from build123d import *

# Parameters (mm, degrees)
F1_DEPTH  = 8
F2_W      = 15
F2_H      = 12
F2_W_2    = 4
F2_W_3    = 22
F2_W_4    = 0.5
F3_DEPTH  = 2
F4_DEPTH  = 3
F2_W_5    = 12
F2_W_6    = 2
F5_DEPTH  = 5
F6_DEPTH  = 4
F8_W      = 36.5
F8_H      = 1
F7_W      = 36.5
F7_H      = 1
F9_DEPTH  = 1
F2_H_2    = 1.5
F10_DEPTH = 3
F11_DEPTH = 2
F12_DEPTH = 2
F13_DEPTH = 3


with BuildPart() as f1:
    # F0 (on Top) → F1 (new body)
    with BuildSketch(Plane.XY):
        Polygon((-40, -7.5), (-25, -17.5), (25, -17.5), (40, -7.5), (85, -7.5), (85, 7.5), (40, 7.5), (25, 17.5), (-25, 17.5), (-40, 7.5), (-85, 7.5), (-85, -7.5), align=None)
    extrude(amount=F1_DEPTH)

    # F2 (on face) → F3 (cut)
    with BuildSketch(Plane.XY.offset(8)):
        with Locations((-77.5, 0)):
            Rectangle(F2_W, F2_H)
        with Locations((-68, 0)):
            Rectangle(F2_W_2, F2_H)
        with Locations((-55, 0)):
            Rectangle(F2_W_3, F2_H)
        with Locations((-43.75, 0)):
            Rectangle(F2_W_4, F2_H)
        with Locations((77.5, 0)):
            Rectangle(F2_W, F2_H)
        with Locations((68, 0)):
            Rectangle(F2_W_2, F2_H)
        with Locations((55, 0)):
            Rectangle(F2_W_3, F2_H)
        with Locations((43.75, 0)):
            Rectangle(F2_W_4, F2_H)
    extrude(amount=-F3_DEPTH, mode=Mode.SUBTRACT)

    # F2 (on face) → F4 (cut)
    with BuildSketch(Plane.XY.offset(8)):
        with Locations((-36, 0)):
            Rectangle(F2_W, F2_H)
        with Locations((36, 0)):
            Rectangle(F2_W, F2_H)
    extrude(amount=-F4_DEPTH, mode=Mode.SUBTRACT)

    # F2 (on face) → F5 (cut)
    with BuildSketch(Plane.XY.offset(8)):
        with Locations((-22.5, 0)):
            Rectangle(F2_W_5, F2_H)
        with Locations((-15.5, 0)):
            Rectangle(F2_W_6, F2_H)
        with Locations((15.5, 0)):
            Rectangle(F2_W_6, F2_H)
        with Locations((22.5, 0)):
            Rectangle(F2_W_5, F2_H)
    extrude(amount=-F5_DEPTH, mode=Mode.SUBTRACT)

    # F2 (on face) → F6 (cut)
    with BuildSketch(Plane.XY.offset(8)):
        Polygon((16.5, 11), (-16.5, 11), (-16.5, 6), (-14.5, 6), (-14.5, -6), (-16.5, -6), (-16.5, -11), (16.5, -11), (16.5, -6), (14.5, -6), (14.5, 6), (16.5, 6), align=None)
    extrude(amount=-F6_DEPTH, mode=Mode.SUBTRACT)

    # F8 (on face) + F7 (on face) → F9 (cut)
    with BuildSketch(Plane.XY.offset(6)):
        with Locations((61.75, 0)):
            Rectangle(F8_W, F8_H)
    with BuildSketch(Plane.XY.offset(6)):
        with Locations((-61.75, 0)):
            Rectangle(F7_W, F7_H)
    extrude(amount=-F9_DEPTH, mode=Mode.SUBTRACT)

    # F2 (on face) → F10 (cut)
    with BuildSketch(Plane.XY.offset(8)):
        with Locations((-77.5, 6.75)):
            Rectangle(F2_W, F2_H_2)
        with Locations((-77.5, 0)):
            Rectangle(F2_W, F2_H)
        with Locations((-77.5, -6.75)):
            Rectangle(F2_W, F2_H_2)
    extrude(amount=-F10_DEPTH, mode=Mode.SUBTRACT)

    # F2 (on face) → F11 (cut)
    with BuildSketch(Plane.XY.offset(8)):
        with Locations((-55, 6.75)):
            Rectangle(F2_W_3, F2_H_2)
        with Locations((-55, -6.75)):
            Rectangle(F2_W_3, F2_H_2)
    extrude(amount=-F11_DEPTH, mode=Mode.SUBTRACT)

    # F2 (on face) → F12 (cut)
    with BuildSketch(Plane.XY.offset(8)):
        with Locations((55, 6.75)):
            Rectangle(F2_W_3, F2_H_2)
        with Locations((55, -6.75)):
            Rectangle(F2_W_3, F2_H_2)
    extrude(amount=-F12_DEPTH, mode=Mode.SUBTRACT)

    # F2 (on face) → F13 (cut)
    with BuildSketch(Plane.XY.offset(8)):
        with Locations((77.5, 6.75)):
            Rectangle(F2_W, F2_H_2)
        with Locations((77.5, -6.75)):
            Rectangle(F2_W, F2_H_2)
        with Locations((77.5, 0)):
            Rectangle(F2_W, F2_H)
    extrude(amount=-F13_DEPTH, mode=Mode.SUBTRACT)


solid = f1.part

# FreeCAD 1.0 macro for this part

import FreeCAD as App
import Part
import Sketcher


def add_polygon(sketch, points):
    """Adds a closed chain of lines whose ends are joined by coincident constraints."""
    first, n = sketch.GeometryCount, len(points)
    for a, b in zip(points, points[1:] + points[:1]):
        sketch.addGeometry(Part.LineSegment(App.Vector(*a, 0), App.Vector(*b, 0)), False)
    for i in range(n):
        sketch.addConstraint(Sketcher.Constraint("Coincident", first + i, 2, first + (i + 1) % n, 1))

doc = App.newDocument("Part")
body = doc.addObject("PartDesign::Body", "Body")

# Sketch on XY plane
sketch1 = doc.addObject("Sketcher::SketchObject", "Sketch")
body.addObject(sketch1)
sketch1.AttachmentSupport = (doc.XY_Plane, [""])
sketch1.MapMode = "FlatFace"
add_polygon(sketch1, [(-40, -8), (-25, -18), (25, -18), (40, -8), (85, -8), (85, 8), (40, 8), (25, 18), (-25, 18), (-40, 8), (-85, 8), (-85, -8)])  # lines 0-11
sketch1.addConstraint(Sketcher.Constraint("Horizontal", 1))
sketch1.addConstraint(Sketcher.Constraint("Horizontal", 3))
sketch1.addConstraint(Sketcher.Constraint("Vertical", 4))
sketch1.addConstraint(Sketcher.Constraint("Horizontal", 5))
sketch1.addConstraint(Sketcher.Constraint("Horizontal", 7))
sketch1.addConstraint(Sketcher.Constraint("Horizontal", 9))
sketch1.addConstraint(Sketcher.Constraint("Vertical", 10))
sketch1.addConstraint(Sketcher.Constraint("Horizontal", 11))
sketch1.addConstraint(Sketcher.Constraint("Symmetric", 0, 2, 6, 2, -1, 1))
sketch1.addConstraint(Sketcher.Constraint("Symmetric", 2, 2, 8, 2, -1, 1))
sketch1.addConstraint(Sketcher.Constraint("Symmetric", 4, 2, 10, 2, -1, 1))
sketch1.addConstraint(Sketcher.Constraint("Symmetric", 5, 2, 8, 2, -2))
sketch1.addConstraint(Sketcher.Constraint("Parallel", 0, 6))
sketch1.addConstraint(Sketcher.Constraint("Parallel", 2, 8))
sketch1.addConstraint(Sketcher.Constraint("Vertical", 1, 2, 6, 2))
sketch1.addConstraint(Sketcher.Constraint("DistanceX", 1, 1, 1, 2, 50.0))
sketch1.addConstraint(Sketcher.Constraint("DistanceX", 3, 1, 3, 2, 45.0))
sketch1.addConstraint(Sketcher.Constraint("DistanceY", 4, 1, 4, 2, 15.0))
sketch1.addConstraint(Sketcher.Constraint("DistanceX", -1, 1, 2, 2, 40.0))
sketch1.addConstraint(Sketcher.Constraint("DistanceY", 1, 2, 2, 2, 10.0))
pad1 = doc.addObject("PartDesign::Pad", "Pad")
body.addObject(pad1)
pad1.Profile = sketch1
pad1.Length = 8

# Sketch on XY plane
sketch2 = doc.addObject("Sketcher::SketchObject", "Sketch001")
body.addObject(sketch2)
sketch2.AttachmentSupport = (doc.XY_Plane, [""])
sketch2.MapMode = "FlatFace"
sketch2.AttachmentOffset = App.Placement(App.Vector(0, 0, 8), App.Rotation())
add_polygon(sketch2, [(-85, 6), (-85, -6), (-44, -6), (-44, 6)])  # lines 0-3
add_polygon(sketch2, [(85, -6), (85, 6), (44, 6), (44, -6)])  # lines 4-7
sketch2.addConstraint(Sketcher.Constraint("Vertical", 0))
sketch2.addConstraint(Sketcher.Constraint("Horizontal", 1))
sketch2.addConstraint(Sketcher.Constraint("Vertical", 2))
sketch2.addConstraint(Sketcher.Constraint("Horizontal", 3))
sketch2.addConstraint(Sketcher.Constraint("Vertical", 4))
sketch2.addConstraint(Sketcher.Constraint("Horizontal", 5))
sketch2.addConstraint(Sketcher.Constraint("Vertical", 6))
sketch2.addConstraint(Sketcher.Constraint("Horizontal", 7))
sketch2.addConstraint(Sketcher.Constraint("Symmetric", 0, 2, 4, 2, -1, 1))
sketch2.addConstraint(Sketcher.Constraint("Symmetric", 2, 2, 6, 2, -1, 1))
sketch2.addConstraint(Sketcher.Constraint("Horizontal", 3, 2, 4, 2))
sketch2.addConstraint(Sketcher.Constraint("DistanceY", 0, 2, 0, 1, 12.0))
sketch2.addConstraint(Sketcher.Constraint("DistanceX", 1, 1, 1, 2, 41.5))
sketch2.addConstraint(Sketcher.Constraint("DistanceX", 0, 2, -1, 1, 85.0))
pocket1 = doc.addObject("PartDesign::Pocket", "Pocket")
body.addObject(pocket1)
pocket1.Profile = sketch2
pocket1.Length = 2

# Sketch on XY plane
sketch3 = doc.addObject("Sketcher::SketchObject", "Sketch002")
body.addObject(sketch3)
sketch3.AttachmentSupport = (doc.XY_Plane, [""])
sketch3.MapMode = "FlatFace"
sketch3.AttachmentOffset = App.Placement(App.Vector(0, 0, 8), App.Rotation())
add_polygon(sketch3, [(-44, 6), (-44, -6), (-28, -6), (-28, 6)])  # lines 0-3
add_polygon(sketch3, [(28, 6), (28, -6), (44, -6), (44, 6)])  # lines 4-7
sketch3.addConstraint(Sketcher.Constraint("Vertical", 0))
sketch3.addConstraint(Sketcher.Constraint("Horizontal", 1))
sketch3.addConstraint(Sketcher.Constraint("Vertical", 2))
sketch3.addConstraint(Sketcher.Constraint("Horizontal", 3))
sketch3.addConstraint(Sketcher.Constraint("Vertical", 4))
sketch3.addConstraint(Sketcher.Constraint("Horizontal", 5))
sketch3.addConstraint(Sketcher.Constraint("Vertical", 6))
sketch3.addConstraint(Sketcher.Constraint("Horizontal", 7))
sketch3.addConstraint(Sketcher.Constraint("Symmetric", 2, 2, 4, 2, -1, 1))
sketch3.addConstraint(Sketcher.Constraint("Symmetric", 0, 2, 6, 2, -1, 1))
sketch3.addConstraint(Sketcher.Constraint("Horizontal", 1, 2, 4, 2))
sketch3.addConstraint(Sketcher.Constraint("DistanceX", 1, 1, 1, 2, 15.0))
sketch3.addConstraint(Sketcher.Constraint("DistanceY", 0, 2, 0, 1, 12.0))
sketch3.addConstraint(Sketcher.Constraint("DistanceX", 1, 2, 4, 2, 57.0))
pocket2 = doc.addObject("PartDesign::Pocket", "Pocket001")
body.addObject(pocket2)
pocket2.Profile = sketch3
pocket2.Length = 3

# Sketch on XY plane
sketch4 = doc.addObject("Sketcher::SketchObject", "Sketch003")
body.addObject(sketch4)
sketch4.AttachmentSupport = (doc.XY_Plane, [""])
sketch4.MapMode = "FlatFace"
sketch4.AttachmentOffset = App.Placement(App.Vector(0, 0, 8), App.Rotation())
add_polygon(sketch4, [(-28, 6), (-28, -6), (-14, -6), (-14, 6)])  # lines 0-3
add_polygon(sketch4, [(14, 6), (14, -6), (28, -6), (28, 6)])  # lines 4-7
sketch4.addConstraint(Sketcher.Constraint("Vertical", 0))
sketch4.addConstraint(Sketcher.Constraint("Horizontal", 1))
sketch4.addConstraint(Sketcher.Constraint("Vertical", 2))
sketch4.addConstraint(Sketcher.Constraint("Horizontal", 3))
sketch4.addConstraint(Sketcher.Constraint("Vertical", 4))
sketch4.addConstraint(Sketcher.Constraint("Horizontal", 5))
sketch4.addConstraint(Sketcher.Constraint("Vertical", 6))
sketch4.addConstraint(Sketcher.Constraint("Horizontal", 7))
sketch4.addConstraint(Sketcher.Constraint("Symmetric", 2, 2, 4, 2, -1, 1))
sketch4.addConstraint(Sketcher.Constraint("Symmetric", 0, 2, 6, 2, -1, 1))
sketch4.addConstraint(Sketcher.Constraint("Horizontal", 1, 2, 4, 2))
sketch4.addConstraint(Sketcher.Constraint("DistanceX", 1, 1, 1, 2, 14.0))
sketch4.addConstraint(Sketcher.Constraint("DistanceY", 0, 2, 0, 1, 12.0))
sketch4.addConstraint(Sketcher.Constraint("DistanceX", 1, 2, 4, 2, 29.0))
pocket3 = doc.addObject("PartDesign::Pocket", "Pocket002")
body.addObject(pocket3)
pocket3.Profile = sketch4
pocket3.Length = 5

# Sketch on XY plane
sketch5 = doc.addObject("Sketcher::SketchObject", "Sketch004")
body.addObject(sketch5)
sketch5.AttachmentSupport = (doc.XY_Plane, [""])
sketch5.MapMode = "FlatFace"
sketch5.AttachmentOffset = App.Placement(App.Vector(0, 0, 8), App.Rotation())
add_polygon(sketch5, [(16.5, 11), (-16.5, 11), (-16.5, 6), (-14.5, 6), (-14.5, -6), (-16.5, -6), (-16.5, -11), (16.5, -11), (16.5, -6), (14.5, -6), (14.5, 6), (16.5, 6)])  # lines 0-11
sketch5.addConstraint(Sketcher.Constraint("Horizontal", 0))
sketch5.addConstraint(Sketcher.Constraint("Vertical", 1))
sketch5.addConstraint(Sketcher.Constraint("Horizontal", 2))
sketch5.addConstraint(Sketcher.Constraint("Vertical", 3))
sketch5.addConstraint(Sketcher.Constraint("Horizontal", 4))
sketch5.addConstraint(Sketcher.Constraint("Vertical", 5))
sketch5.addConstraint(Sketcher.Constraint("Horizontal", 6))
sketch5.addConstraint(Sketcher.Constraint("Vertical", 7))
sketch5.addConstraint(Sketcher.Constraint("Horizontal", 8))
sketch5.addConstraint(Sketcher.Constraint("Vertical", 9))
sketch5.addConstraint(Sketcher.Constraint("Horizontal", 10))
sketch5.addConstraint(Sketcher.Constraint("Vertical", 11))
sketch5.addConstraint(Sketcher.Constraint("Symmetric", 0, 2, 6, 2, -1, 1))
sketch5.addConstraint(Sketcher.Constraint("Symmetric", 2, 2, 8, 2, -1, 1))
sketch5.addConstraint(Sketcher.Constraint("Symmetric", 4, 2, 10, 2, -1, 1))
sketch5.addConstraint(Sketcher.Constraint("Symmetric", 4, 2, 7, 2, -2))
sketch5.addConstraint(Sketcher.Constraint("DistanceX", 0, 2, 0, 1, 33.0))
sketch5.addConstraint(Sketcher.Constraint("DistanceX", 2, 1, 2, 2, 2.0))
sketch5.addConstraint(Sketcher.Constraint("DistanceY", 1, 2, 1, 1, 5.0))
sketch5.addConstraint(Sketcher.Constraint("DistanceY", 3, 2, 3, 1, 12.0))
pocket4 = doc.addObject("PartDesign::Pocket", "Pocket003")
body.addObject(pocket4)
pocket4.Profile = sketch5
pocket4.Length = 4

# Sketch on XY plane
sketch6 = doc.addObject("Sketcher::SketchObject", "Sketch005")
body.addObject(sketch6)
sketch6.AttachmentSupport = (doc.XY_Plane, [""])
sketch6.MapMode = "FlatFace"
sketch6.AttachmentOffset = App.Placement(App.Vector(0, 0, 6), App.Rotation())
add_polygon(sketch6, [(43.5, 0.5), (43.5, -0.5), (80, -0.5), (80, 0.5)])  # lines 0-3
add_polygon(sketch6, [(-80, 0.5), (-80, -0.5), (-43.5, -0.5), (-43.5, 0.5)])  # lines 4-7
sketch6.addConstraint(Sketcher.Constraint("Vertical", 0))
sketch6.addConstraint(Sketcher.Constraint("Horizontal", 1))
sketch6.addConstraint(Sketcher.Constraint("Vertical", 2))
sketch6.addConstraint(Sketcher.Constraint("Horizontal", 3))
sketch6.addConstraint(Sketcher.Constraint("Vertical", 4))
sketch6.addConstraint(Sketcher.Constraint("Horizontal", 5))
sketch6.addConstraint(Sketcher.Constraint("Vertical", 6))
sketch6.addConstraint(Sketcher.Constraint("Horizontal", 7))
sketch6.addConstraint(Sketcher.Constraint("Symmetric", 2, 2, 4, 2, -1, 1))
sketch6.addConstraint(Sketcher.Constraint("Symmetric", 0, 2, 6, 2, -1, 1))
sketch6.addConstraint(Sketcher.Constraint("Horizontal", 1, 2, 4, 2))
sketch6.addConstraint(Sketcher.Constraint("DistanceY", 0, 2, 0, 1, 1.0))
sketch6.addConstraint(Sketcher.Constraint("DistanceX", 1, 1, 1, 2, 36.5))
sketch6.addConstraint(Sketcher.Constraint("DistanceX", -1, 1, 1, 2, 80.0))
pocket5 = doc.addObject("PartDesign::Pocket", "Pocket004")
body.addObject(pocket5)
pocket5.Profile = sketch6
pocket5.Length = 1

# Sketch on XY plane
sketch7 = doc.addObject("Sketcher::SketchObject", "Sketch006")
body.addObject(sketch7)
sketch7.AttachmentSupport = (doc.XY_Plane, [""])
sketch7.MapMode = "FlatFace"
sketch7.AttachmentOffset = App.Placement(App.Vector(0, 0, 8), App.Rotation())
add_polygon(sketch7, [(-85, 8), (-85, -8), (-70, -8), (-70, 8)])  # lines 0-3
sketch7.addConstraint(Sketcher.Constraint("Vertical", 0))
sketch7.addConstraint(Sketcher.Constraint("Horizontal", 1))
sketch7.addConstraint(Sketcher.Constraint("Vertical", 2))
sketch7.addConstraint(Sketcher.Constraint("Horizontal", 3))
sketch7.addConstraint(Sketcher.Constraint("Equal", 3, 0))
sketch7.addConstraint(Sketcher.Constraint("DistanceX", 1, 1, 1, 2, 15.0))
sketch7.addConstraint(Sketcher.Constraint("DistanceX", 0, 2, -1, 1, 85.0))
sketch7.addConstraint(Sketcher.Constraint("DistanceY", 0, 2, -1, 1, 7.5))
pocket6 = doc.addObject("PartDesign::Pocket", "Pocket005")
body.addObject(pocket6)
pocket6.Profile = sketch7
pocket6.Length = 3

# Sketch on XY plane
sketch8 = doc.addObject("Sketcher::SketchObject", "Sketch007")
body.addObject(sketch8)
sketch8.AttachmentSupport = (doc.XY_Plane, [""])
sketch8.MapMode = "FlatFace"
sketch8.AttachmentOffset = App.Placement(App.Vector(0, 0, 8), App.Rotation())
add_polygon(sketch8, [(-66, 7.5), (-66, 6), (-44, 6), (-44, 7.5)])  # lines 0-3
add_polygon(sketch8, [(-66, -6), (-66, -7.5), (-44, -7.5), (-44, -6)])  # lines 4-7
sketch8.addConstraint(Sketcher.Constraint("Vertical", 0))
sketch8.addConstraint(Sketcher.Constraint("Horizontal", 1))
sketch8.addConstraint(Sketcher.Constraint("Vertical", 2))
sketch8.addConstraint(Sketcher.Constraint("Horizontal", 3))
sketch8.addConstraint(Sketcher.Constraint("Vertical", 4))
sketch8.addConstraint(Sketcher.Constraint("Horizontal", 5))
sketch8.addConstraint(Sketcher.Constraint("Vertical", 6))
sketch8.addConstraint(Sketcher.Constraint("Horizontal", 7))
sketch8.addConstraint(Sketcher.Constraint("Symmetric", 3, 2, 4, 2, -1))
sketch8.addConstraint(Sketcher.Constraint("Symmetric", 1, 2, 6, 2, -1))
sketch8.addConstraint(Sketcher.Constraint("DistanceX", 1, 1, 1, 2, 22.0))
sketch8.addConstraint(Sketcher.Constraint("DistanceY", 0, 2, 0, 1, 1.5))
sketch8.addConstraint(Sketcher.Constraint("DistanceX", 0, 2, -1, 1, 66.0))
sketch8.addConstraint(Sketcher.Constraint("DistanceY", -1, 1, 0, 2, 6.0))
pocket7 = doc.addObject("PartDesign::Pocket", "Pocket006")
body.addObject(pocket7)
pocket7.Profile = sketch8
pocket7.Length = 2

# Sketch on XY plane
sketch9 = doc.addObject("Sketcher::SketchObject", "Sketch008")
body.addObject(sketch9)
sketch9.AttachmentSupport = (doc.XY_Plane, [""])
sketch9.MapMode = "FlatFace"
sketch9.AttachmentOffset = App.Placement(App.Vector(0, 0, 8), App.Rotation())
add_polygon(sketch9, [(44, 7.5), (44, 6), (66, 6), (66, 7.5)])  # lines 0-3
add_polygon(sketch9, [(44, -6), (44, -7.5), (66, -7.5), (66, -6)])  # lines 4-7
sketch9.addConstraint(Sketcher.Constraint("Vertical", 0))
sketch9.addConstraint(Sketcher.Constraint("Horizontal", 1))
sketch9.addConstraint(Sketcher.Constraint("Vertical", 2))
sketch9.addConstraint(Sketcher.Constraint("Horizontal", 3))
sketch9.addConstraint(Sketcher.Constraint("Vertical", 4))
sketch9.addConstraint(Sketcher.Constraint("Horizontal", 5))
sketch9.addConstraint(Sketcher.Constraint("Vertical", 6))
sketch9.addConstraint(Sketcher.Constraint("Horizontal", 7))
sketch9.addConstraint(Sketcher.Constraint("Symmetric", 3, 2, 4, 2, -1))
sketch9.addConstraint(Sketcher.Constraint("Symmetric", 1, 2, 6, 2, -1))
sketch9.addConstraint(Sketcher.Constraint("DistanceX", 1, 1, 1, 2, 22.0))
sketch9.addConstraint(Sketcher.Constraint("DistanceY", 0, 2, 0, 1, 1.5))
sketch9.addConstraint(Sketcher.Constraint("DistanceX", -1, 1, 0, 2, 44.0))
sketch9.addConstraint(Sketcher.Constraint("DistanceY", -1, 1, 0, 2, 6.0))
pocket8 = doc.addObject("PartDesign::Pocket", "Pocket007")
body.addObject(pocket8)
pocket8.Profile = sketch9
pocket8.Length = 2

# Sketch on XY plane
sketch10 = doc.addObject("Sketcher::SketchObject", "Sketch009")
body.addObject(sketch10)
sketch10.AttachmentSupport = (doc.XY_Plane, [""])
sketch10.MapMode = "FlatFace"
sketch10.AttachmentOffset = App.Placement(App.Vector(0, 0, 8), App.Rotation())
add_polygon(sketch10, [(70, 8), (70, -8), (85, -8), (85, 8)])  # lines 0-3
sketch10.addConstraint(Sketcher.Constraint("Vertical", 0))
sketch10.addConstraint(Sketcher.Constraint("Horizontal", 1))
sketch10.addConstraint(Sketcher.Constraint("Vertical", 2))
sketch10.addConstraint(Sketcher.Constraint("Horizontal", 3))
sketch10.addConstraint(Sketcher.Constraint("Equal", 3, 0))
sketch10.addConstraint(Sketcher.Constraint("DistanceX", 1, 1, 1, 2, 15.0))
sketch10.addConstraint(Sketcher.Constraint("DistanceX", -1, 1, 0, 2, 70.0))
sketch10.addConstraint(Sketcher.Constraint("DistanceY", 0, 2, -1, 1, 7.5))
pocket9 = doc.addObject("PartDesign::Pocket", "Pocket008")
body.addObject(pocket9)
pocket9.Profile = sketch10
pocket9.Length = 3

doc.recompute()
